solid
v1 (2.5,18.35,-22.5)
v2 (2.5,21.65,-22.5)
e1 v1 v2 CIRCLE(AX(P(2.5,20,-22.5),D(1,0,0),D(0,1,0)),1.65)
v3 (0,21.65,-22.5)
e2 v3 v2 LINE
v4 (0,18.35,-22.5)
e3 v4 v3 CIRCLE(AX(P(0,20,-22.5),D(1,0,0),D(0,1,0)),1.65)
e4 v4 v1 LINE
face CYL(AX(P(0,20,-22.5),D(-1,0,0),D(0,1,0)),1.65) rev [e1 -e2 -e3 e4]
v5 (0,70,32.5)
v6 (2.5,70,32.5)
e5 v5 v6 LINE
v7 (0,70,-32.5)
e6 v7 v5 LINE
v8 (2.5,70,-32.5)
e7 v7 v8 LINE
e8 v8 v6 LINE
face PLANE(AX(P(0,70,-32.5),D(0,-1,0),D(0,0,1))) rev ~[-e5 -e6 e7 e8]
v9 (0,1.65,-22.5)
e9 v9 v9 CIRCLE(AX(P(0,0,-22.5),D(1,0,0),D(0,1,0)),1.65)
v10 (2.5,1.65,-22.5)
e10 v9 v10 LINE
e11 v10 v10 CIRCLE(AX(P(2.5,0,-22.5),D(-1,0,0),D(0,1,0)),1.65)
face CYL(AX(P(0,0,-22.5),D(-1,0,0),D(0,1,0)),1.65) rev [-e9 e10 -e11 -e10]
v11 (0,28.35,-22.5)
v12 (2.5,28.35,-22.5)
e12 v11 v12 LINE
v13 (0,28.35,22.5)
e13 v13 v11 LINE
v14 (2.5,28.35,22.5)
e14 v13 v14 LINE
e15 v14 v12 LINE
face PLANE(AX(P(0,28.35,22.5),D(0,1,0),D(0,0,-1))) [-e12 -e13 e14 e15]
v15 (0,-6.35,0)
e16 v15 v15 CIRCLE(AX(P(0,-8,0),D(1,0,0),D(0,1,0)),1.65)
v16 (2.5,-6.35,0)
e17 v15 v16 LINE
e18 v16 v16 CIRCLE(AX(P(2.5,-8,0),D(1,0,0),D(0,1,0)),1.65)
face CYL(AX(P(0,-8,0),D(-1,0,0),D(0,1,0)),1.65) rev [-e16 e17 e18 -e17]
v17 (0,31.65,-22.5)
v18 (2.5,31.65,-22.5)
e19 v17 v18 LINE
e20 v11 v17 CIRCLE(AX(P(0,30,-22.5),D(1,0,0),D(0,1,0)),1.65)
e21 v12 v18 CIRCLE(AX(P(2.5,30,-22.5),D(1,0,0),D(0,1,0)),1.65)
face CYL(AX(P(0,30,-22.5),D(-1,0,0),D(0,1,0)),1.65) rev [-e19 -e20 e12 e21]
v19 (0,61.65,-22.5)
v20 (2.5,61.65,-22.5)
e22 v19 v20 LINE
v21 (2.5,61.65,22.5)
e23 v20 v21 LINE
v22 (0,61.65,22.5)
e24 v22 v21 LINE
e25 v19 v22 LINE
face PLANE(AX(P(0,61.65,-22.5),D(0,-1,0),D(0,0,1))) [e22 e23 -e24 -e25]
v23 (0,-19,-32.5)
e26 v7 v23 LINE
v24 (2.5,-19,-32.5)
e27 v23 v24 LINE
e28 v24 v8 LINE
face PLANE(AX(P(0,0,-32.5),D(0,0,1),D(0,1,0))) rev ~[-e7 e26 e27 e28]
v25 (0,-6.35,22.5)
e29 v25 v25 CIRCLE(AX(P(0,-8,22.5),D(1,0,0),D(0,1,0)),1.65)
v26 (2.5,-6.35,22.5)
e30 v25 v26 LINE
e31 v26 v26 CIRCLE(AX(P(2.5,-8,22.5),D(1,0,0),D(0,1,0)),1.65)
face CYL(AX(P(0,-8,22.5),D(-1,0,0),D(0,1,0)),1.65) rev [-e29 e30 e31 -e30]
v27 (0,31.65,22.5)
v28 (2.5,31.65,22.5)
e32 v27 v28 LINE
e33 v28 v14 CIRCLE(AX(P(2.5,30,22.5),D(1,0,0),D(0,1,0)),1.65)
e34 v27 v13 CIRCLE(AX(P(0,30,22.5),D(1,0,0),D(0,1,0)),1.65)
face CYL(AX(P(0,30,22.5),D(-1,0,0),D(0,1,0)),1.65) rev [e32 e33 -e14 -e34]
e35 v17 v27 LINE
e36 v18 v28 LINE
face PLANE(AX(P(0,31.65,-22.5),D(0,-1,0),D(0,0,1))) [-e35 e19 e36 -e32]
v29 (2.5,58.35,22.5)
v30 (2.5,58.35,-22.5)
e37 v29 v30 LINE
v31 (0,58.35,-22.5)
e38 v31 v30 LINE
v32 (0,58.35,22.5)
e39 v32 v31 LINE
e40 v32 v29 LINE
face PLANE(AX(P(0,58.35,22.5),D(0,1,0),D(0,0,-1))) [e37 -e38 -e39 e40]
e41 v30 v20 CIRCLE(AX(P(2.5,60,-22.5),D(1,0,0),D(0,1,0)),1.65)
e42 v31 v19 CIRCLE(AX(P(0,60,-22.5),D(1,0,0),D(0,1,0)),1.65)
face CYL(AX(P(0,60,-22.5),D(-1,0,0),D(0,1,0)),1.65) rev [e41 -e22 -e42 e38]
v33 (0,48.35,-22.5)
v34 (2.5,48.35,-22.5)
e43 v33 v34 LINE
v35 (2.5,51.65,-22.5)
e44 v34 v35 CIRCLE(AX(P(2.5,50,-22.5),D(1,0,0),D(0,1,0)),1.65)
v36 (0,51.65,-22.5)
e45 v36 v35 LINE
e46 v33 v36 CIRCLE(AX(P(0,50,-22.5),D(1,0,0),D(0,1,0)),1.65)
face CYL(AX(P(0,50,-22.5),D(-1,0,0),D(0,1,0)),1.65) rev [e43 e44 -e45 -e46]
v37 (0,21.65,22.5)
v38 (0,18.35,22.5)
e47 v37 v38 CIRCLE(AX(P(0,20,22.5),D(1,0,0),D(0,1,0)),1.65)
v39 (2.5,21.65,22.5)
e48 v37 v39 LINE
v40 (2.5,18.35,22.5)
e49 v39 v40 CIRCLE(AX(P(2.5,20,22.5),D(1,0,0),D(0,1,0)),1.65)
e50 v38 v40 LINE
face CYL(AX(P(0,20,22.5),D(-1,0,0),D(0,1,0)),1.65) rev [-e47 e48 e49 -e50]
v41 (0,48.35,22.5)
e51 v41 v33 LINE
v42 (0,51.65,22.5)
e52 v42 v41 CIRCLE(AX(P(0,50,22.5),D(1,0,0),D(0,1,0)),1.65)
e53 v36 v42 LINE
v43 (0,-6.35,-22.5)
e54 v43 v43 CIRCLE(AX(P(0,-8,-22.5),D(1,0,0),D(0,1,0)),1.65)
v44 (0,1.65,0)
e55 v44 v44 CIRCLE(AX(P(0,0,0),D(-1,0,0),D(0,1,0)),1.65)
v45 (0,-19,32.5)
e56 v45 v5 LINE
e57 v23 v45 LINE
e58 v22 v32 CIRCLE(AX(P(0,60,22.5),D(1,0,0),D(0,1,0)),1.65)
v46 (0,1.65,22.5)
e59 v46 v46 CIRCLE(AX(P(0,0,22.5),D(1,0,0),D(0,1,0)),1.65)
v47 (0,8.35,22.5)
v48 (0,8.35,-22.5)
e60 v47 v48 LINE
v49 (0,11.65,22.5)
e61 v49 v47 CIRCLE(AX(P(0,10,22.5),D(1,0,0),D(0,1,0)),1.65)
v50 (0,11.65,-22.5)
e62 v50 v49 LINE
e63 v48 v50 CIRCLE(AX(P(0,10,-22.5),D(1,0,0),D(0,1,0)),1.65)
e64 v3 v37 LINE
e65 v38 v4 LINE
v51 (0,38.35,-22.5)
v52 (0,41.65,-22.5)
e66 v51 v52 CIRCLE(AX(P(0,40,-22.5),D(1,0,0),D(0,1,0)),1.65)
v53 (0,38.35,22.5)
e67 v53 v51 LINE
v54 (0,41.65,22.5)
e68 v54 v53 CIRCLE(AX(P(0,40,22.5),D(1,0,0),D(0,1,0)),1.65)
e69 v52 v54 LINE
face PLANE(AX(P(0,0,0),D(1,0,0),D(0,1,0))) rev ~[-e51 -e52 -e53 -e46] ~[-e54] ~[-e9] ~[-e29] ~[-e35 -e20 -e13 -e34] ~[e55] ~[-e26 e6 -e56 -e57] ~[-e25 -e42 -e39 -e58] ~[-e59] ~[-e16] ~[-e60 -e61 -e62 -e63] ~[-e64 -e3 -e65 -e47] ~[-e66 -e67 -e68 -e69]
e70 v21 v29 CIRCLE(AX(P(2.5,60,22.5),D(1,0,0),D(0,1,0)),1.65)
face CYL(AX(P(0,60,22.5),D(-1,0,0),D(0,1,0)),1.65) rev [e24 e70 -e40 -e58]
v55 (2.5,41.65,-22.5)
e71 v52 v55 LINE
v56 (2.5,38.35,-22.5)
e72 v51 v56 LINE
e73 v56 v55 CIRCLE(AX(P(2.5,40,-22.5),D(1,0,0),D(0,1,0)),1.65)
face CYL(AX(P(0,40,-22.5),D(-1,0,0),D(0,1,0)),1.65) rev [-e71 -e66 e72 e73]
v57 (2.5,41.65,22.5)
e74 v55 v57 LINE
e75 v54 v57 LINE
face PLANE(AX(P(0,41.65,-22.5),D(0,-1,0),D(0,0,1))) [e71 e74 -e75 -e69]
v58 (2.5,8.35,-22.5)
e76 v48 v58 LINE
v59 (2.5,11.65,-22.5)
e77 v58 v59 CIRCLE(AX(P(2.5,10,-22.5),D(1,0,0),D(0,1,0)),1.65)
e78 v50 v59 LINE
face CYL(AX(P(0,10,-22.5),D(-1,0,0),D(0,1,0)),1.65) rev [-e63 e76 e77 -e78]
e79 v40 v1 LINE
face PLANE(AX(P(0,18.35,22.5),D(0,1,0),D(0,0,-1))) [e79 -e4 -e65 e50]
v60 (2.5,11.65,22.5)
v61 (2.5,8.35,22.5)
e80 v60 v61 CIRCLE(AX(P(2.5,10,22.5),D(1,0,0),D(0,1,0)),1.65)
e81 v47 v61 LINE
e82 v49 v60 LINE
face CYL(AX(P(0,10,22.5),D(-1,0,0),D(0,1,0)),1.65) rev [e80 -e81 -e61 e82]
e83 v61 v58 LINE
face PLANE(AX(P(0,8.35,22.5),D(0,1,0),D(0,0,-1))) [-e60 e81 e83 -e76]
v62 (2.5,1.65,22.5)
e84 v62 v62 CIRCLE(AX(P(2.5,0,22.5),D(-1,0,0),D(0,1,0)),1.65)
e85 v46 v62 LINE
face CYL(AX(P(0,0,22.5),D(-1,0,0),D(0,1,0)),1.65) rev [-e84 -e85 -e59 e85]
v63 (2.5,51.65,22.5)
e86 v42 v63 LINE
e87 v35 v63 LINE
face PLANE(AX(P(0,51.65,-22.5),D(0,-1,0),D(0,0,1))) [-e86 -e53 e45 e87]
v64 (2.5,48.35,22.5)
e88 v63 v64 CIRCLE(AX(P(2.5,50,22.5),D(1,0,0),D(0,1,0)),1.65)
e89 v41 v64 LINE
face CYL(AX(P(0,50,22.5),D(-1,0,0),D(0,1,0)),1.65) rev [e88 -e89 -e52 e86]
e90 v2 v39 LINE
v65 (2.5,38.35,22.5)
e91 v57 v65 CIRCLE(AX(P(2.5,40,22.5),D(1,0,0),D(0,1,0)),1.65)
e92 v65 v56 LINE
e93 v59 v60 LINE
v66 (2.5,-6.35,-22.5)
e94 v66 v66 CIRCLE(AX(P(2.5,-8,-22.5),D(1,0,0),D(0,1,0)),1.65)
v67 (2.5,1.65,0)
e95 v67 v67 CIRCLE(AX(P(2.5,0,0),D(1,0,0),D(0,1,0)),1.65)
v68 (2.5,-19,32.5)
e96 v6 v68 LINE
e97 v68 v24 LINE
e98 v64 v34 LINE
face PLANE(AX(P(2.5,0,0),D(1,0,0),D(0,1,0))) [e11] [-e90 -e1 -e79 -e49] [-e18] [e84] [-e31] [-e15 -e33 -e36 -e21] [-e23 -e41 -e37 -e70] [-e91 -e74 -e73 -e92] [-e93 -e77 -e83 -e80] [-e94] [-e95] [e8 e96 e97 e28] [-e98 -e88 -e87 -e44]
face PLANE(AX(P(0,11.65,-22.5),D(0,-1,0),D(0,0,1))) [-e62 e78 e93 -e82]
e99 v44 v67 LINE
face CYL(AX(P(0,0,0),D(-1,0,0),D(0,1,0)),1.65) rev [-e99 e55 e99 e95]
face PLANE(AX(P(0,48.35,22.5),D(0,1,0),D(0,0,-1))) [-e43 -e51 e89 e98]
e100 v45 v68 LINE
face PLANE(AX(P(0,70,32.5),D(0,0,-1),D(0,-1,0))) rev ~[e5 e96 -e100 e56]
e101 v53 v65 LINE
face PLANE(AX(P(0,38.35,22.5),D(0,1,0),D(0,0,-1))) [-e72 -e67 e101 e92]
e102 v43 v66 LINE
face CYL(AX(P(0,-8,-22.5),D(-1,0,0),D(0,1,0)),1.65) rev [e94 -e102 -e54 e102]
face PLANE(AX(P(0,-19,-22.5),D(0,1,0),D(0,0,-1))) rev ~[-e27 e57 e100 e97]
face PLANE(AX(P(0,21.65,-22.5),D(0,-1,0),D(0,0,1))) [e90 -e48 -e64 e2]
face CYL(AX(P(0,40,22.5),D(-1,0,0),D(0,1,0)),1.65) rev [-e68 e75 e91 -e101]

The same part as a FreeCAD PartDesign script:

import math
import FreeCAD as App
import Part
import Sketcher
from FreeCAD import Vector
Q = App.Units.Quantity

doc = App.newDocument("Part")
body = doc.addObject("PartDesign::Body", "Body")

# Sketch on YZ plane
sketch1 = body.newObject("Sketcher::SketchObject", "Sketch")
sketch1.AttachmentSupport = (doc.getObject("YZ_Plane"), [""])
sketch1.MapMode = "FlatFace"
sketch1.addGeometry(Part.LineSegment(Vector(70, 32.5, 0), Vector(-19, 32.5, 0)), False)
sketch1.addGeometry(Part.LineSegment(Vector(-19, 32.5, 0), Vector(-19, -32.5, 0)), False)
sketch1.addGeometry(Part.LineSegment(Vector(-19, -32.5, 0), Vector(70, -32.5, 0)), False)
sketch1.addGeometry(Part.LineSegment(Vector(70, -32.5, 0), Vector(70, 32.5, 0)), False)
sketch1.addGeometry(Part.Circle(Vector(0, 0, 0), Vector(0, 0, 1), 1.6), False)
sketch1.addGeometry(Part.Circle(Vector(0, 22.5, 0), Vector(0, 0, 1), 1.6), False)
sketch1.addGeometry(Part.Circle(Vector(0, -22.5, 0), Vector(0, 0, 1), 1.6), False)
sketch1.addGeometry(Part.LineSegment(Vector(11.7, 22.5, 0), Vector(11.7, -22.5, 0)), False)
sketch1.addGeometry(Part.ArcOfCircle(Part.Circle(Vector(10, -22.5, 0), Vector(0, 0, 1), 1.6), math.radians(180), math.radians(360)), False)
sketch1.addGeometry(Part.LineSegment(Vector(8.3, -22.5, 0), Vector(8.3, 22.5, 0)), False)
sketch1.addGeometry(Part.ArcOfCircle(Part.Circle(Vector(10, 22.5, 0), Vector(0, 0, 1), 1.6), math.radians(0), math.radians(180)), False)
sketch1.addGeometry(Part.LineSegment(Vector(18.4, -22.5, 0), Vector(18.4, 22.5, 0)), False)
sketch1.addGeometry(Part.ArcOfCircle(Part.Circle(Vector(20, 22.5, 0), Vector(0, 0, 1), 1.6), math.radians(0), math.radians(180)), False)
sketch1.addGeometry(Part.LineSegment(Vector(21.6, 22.5, 0), Vector(21.6, -22.5, 0)), False)
sketch1.addGeometry(Part.ArcOfCircle(Part.Circle(Vector(20, -22.5, 0), Vector(0, 0, 1), 1.6), math.radians(180), math.radians(360)), False)
sketch1.addGeometry(Part.LineSegment(Vector(28.4, -22.5, 0), Vector(28.4, 22.5, 0)), False)
sketch1.addGeometry(Part.ArcOfCircle(Part.Circle(Vector(30, 22.5, 0), Vector(0, 0, 1), 1.6), math.radians(0), math.radians(180)), False)
sketch1.addGeometry(Part.LineSegment(Vector(31.6, 22.5, 0), Vector(31.6, -22.5, 0)), False)
sketch1.addGeometry(Part.ArcOfCircle(Part.Circle(Vector(30, -22.5, 0), Vector(0, 0, 1), 1.6), math.radians(180), math.radians(360)), False)
sketch1.addGeometry(Part.LineSegment(Vector(38.4, -22.5, 0), Vector(38.4, 22.5, 0)), False)
sketch1.addGeometry(Part.ArcOfCircle(Part.Circle(Vector(40, 22.5, 0), Vector(0, 0, 1), 1.6), math.radians(0), math.radians(180)), False)
sketch1.addGeometry(Part.LineSegment(Vector(41.6, 22.5, 0), Vector(41.6, -22.5, 0)), False)
sketch1.addGeometry(Part.ArcOfCircle(Part.Circle(Vector(40, -22.5, 0), Vector(0, 0, 1), 1.6), math.radians(180), math.radians(360)), False)
sketch1.addGeometry(Part.LineSegment(Vector(48.4, -22.5, 0), Vector(48.4, 22.5, 0)), False)
sketch1.addGeometry(Part.ArcOfCircle(Part.Circle(Vector(50, 22.5, 0), Vector(0, 0, 1), 1.6), math.radians(0), math.radians(180)), False)
sketch1.addGeometry(Part.LineSegment(Vector(51.6, 22.5, 0), Vector(51.6, -22.5, 0)), False)
sketch1.addGeometry(Part.ArcOfCircle(Part.Circle(Vector(50, -22.5, 0), Vector(0, 0, 1), 1.6), math.radians(180), math.radians(360)), False)
sketch1.addGeometry(Part.LineSegment(Vector(58.4, -22.5, 0), Vector(58.4, 22.5, 0)), False)
sketch1.addGeometry(Part.ArcOfCircle(Part.Circle(Vector(60, 22.5, 0), Vector(0, 0, 1), 1.6), math.radians(0), math.radians(180)), False)
sketch1.addGeometry(Part.LineSegment(Vector(61.6, 22.5, 0), Vector(61.6, -22.5, 0)), False)
sketch1.addGeometry(Part.ArcOfCircle(Part.Circle(Vector(60, -22.5, 0), Vector(0, 0, 1), 1.6), math.radians(180), math.radians(360)), False)
sketch1.addGeometry(Part.Circle(Vector(-8, 22.5, 0), Vector(0, 0, 1), 1.6), False)
sketch1.addGeometry(Part.Circle(Vector(-8, -22.5, 0), Vector(0, 0, 1), 1.6), False)
sketch1.addGeometry(Part.Circle(Vector(-8, 0, 0), Vector(0, 0, 1), 1.6), False)
sketch1.addConstraint(Sketcher.Constraint("Coincident", 0, 2, 1, 1))
sketch1.addConstraint(Sketcher.Constraint("Coincident", 1, 2, 2, 1))
sketch1.addConstraint(Sketcher.Constraint("Coincident", 2, 2, 3, 1))
sketch1.addConstraint(Sketcher.Constraint("Coincident", 3, 2, 0, 1))
sketch1.addConstraint(Sketcher.Constraint("Tangent", 7, 2, 8, 2))
sketch1.addConstraint(Sketcher.Constraint("Tangent", 8, 1, 9, 1))
sketch1.addConstraint(Sketcher.Constraint("Tangent", 9, 2, 10, 2))
sketch1.addConstraint(Sketcher.Constraint("Tangent", 10, 1, 7, 1))
sketch1.addConstraint(Sketcher.Constraint("Tangent", 11, 2, 12, 2))
sketch1.addConstraint(Sketcher.Constraint("Tangent", 12, 1, 13, 1))
sketch1.addConstraint(Sketcher.Constraint("Tangent", 13, 2, 14, 2))
sketch1.addConstraint(Sketcher.Constraint("Tangent", 14, 1, 11, 1))
sketch1.addConstraint(Sketcher.Constraint("Tangent", 15, 2, 16, 2))
sketch1.addConstraint(Sketcher.Constraint("Tangent", 16, 1, 17, 1))
sketch1.addConstraint(Sketcher.Constraint("Tangent", 17, 2, 18, 2))
sketch1.addConstraint(Sketcher.Constraint("Tangent", 18, 1, 15, 1))
sketch1.addConstraint(Sketcher.Constraint("Tangent", 19, 2, 20, 2))
sketch1.addConstraint(Sketcher.Constraint("Tangent", 20, 1, 21, 1))
sketch1.addConstraint(Sketcher.Constraint("Tangent", 21, 2, 22, 2))
sketch1.addConstraint(Sketcher.Constraint("Tangent", 22, 1, 19, 1))
sketch1.addConstraint(Sketcher.Constraint("Tangent", 23, 2, 24, 2))
sketch1.addConstraint(Sketcher.Constraint("Tangent", 24, 1, 25, 1))
sketch1.addConstraint(Sketcher.Constraint("Tangent", 25, 2, 26, 2))
sketch1.addConstraint(Sketcher.Constraint("Tangent", 26, 1, 23, 1))
sketch1.addConstraint(Sketcher.Constraint("Tangent", 27, 2, 28, 2))
sketch1.addConstraint(Sketcher.Constraint("Tangent", 28, 1, 29, 1))
sketch1.addConstraint(Sketcher.Constraint("Tangent", 29, 2, 30, 2))
sketch1.addConstraint(Sketcher.Constraint("Tangent", 30, 1, 27, 1))
sketch1.addConstraint(Sketcher.Constraint("Horizontal", 0))
sketch1.addConstraint(Sketcher.Constraint("Vertical", 1))
sketch1.addConstraint(Sketcher.Constraint("Horizontal", 2))
sketch1.addConstraint(Sketcher.Constraint("Vertical", 3))
sketch1.addConstraint(Sketcher.Constraint("Vertical", 7))
sketch1.addConstraint(Sketcher.Constraint("Vertical", 9))
sketch1.addConstraint(Sketcher.Constraint("Vertical", 11))
sketch1.addConstraint(Sketcher.Constraint("Vertical", 13))
sketch1.addConstraint(Sketcher.Constraint("Vertical", 15))
sketch1.addConstraint(Sketcher.Constraint("Vertical", 17))
sketch1.addConstraint(Sketcher.Constraint("Vertical", 19))
sketch1.addConstraint(Sketcher.Constraint("Vertical", 21))
sketch1.addConstraint(Sketcher.Constraint("Vertical", 23))
sketch1.addConstraint(Sketcher.Constraint("Vertical", 25))
sketch1.addConstraint(Sketcher.Constraint("Vertical", 27))
sketch1.addConstraint(Sketcher.Constraint("Vertical", 29))
sketch1.addConstraint(Sketcher.Constraint("Coincident", 4, 3, -1, 1))
sketch1.addConstraint(Sketcher.Constraint("Equal", 4, 5))
sketch1.addConstraint(Sketcher.Constraint("Equal", 5, 6))
sketch1.addConstraint(Sketcher.Constraint("Equal", 6, 8))
sketch1.addConstraint(Sketcher.Constraint("Equal", 10, 12))
sketch1.addConstraint(Sketcher.Constraint("Equal", 14, 16))
sketch1.addConstraint(Sketcher.Constraint("Equal", 18, 20))
sketch1.addConstraint(Sketcher.Constraint("Equal", 22, 24))
sketch1.addConstraint(Sketcher.Constraint("Equal", 26, 28))
sketch1.addConstraint(Sketcher.Constraint("Equal", 30, 31))
sketch1.addConstraint(Sketcher.Constraint("Equal", 31, 32))
sketch1.addConstraint(Sketcher.Constraint("Equal", 32, 33))
sketch1.addConstraint(Sketcher.Constraint("Symmetric", 5, 3, 6, 3, -1, 1))
sketch1.addConstraint(Sketcher.Constraint("Symmetric", 31, 3, 32, 3, -1))
sketch1.addConstraint(Sketcher.Constraint("PointOnObject", 5, 3, -2))
sketch1.addConstraint(Sketcher.Constraint("PointOnObject", 33, 3, -1))
sketch1.addConstraint(Sketcher.Constraint("Horizontal", 6, 3, 8, 3))
sketch1.addConstraint(Sketcher.Constraint("Horizontal", 5, 3, 10, 3))
sketch1.addConstraint(Sketcher.Constraint("Horizontal", 10, 3, 12, 3))
sketch1.addConstraint(Sketcher.Constraint("Horizontal", 8, 3, 14, 3))
sketch1.addConstraint(Sketcher.Constraint("Horizontal", 12, 3, 16, 3))
sketch1.addConstraint(Sketcher.Constraint("Horizontal", 14, 3, 18, 3))
sketch1.addConstraint(Sketcher.Constraint("Horizontal", 16, 3, 20, 3))
sketch1.addConstraint(Sketcher.Constraint("Horizontal", 18, 3, 22, 3))
sketch1.addConstraint(Sketcher.Constraint("Horizontal", 20, 3, 24, 3))
sketch1.addConstraint(Sketcher.Constraint("Horizontal", 22, 3, 26, 3))
sketch1.addConstraint(Sketcher.Constraint("Horizontal", 24, 3, 28, 3))
sketch1.addConstraint(Sketcher.Constraint("Horizontal", 26, 3, 30, 3))
sketch1.addConstraint(Sketcher.Constraint("Horizontal", 28, 3, 31, 3))
sketch1.addConstraint(Sketcher.Constraint("Vertical", 32, 3, 33, 3))
sketch1.addConstraint(Sketcher.Constraint("Diameter", 4, Q("3.3 mm")))
sketch1.addConstraint(Sketcher.Constraint("DistanceX", -1, 1, 8, 3, Q("10 mm")))
sketch1.addConstraint(Sketcher.Constraint("DistanceX", -1, 1, 2, 2, Q("70 mm")))
sketch1.addConstraint(Sketcher.Constraint("DistanceX", 10, 3, 12, 3, Q("10 mm")))
sketch1.addConstraint(Sketcher.Constraint("DistanceX", 12, 3, 16, 3, Q("10 mm")))
sketch1.addConstraint(Sketcher.Constraint("DistanceX", 16, 3, 20, 3, Q("10 mm")))
sketch1.addConstraint(Sketcher.Constraint("DistanceX", 20, 3, 24, 3, Q("10 mm")))
sketch1.addConstraint(Sketcher.Constraint("DistanceX", 24, 3, 28, 3, Q("10 mm")))
sketch1.addConstraint(Sketcher.Constraint("DistanceY", 31, 3, 0, 2, Q("10 mm")))
sketch1.addConstraint(Sketcher.Constraint("DistanceY", 1, 2, 32, 3, Q("10 mm")))
sketch1.addConstraint(Sketcher.Constraint("DistanceY", -1, 1, 5, 3, Q("22.5 mm")))
sketch1.addConstraint(Sketcher.Constraint("DistanceX", 0, 2, 0, 1, Q("89 mm")))
sketch1.addConstraint(Sketcher.Constraint("DistanceX", 31, 3, -1, 1, Q("8 mm")))
pad1 = body.newObject("PartDesign::Pad", "Pad")
pad1.Profile = sketch1
pad1.Length = 2.5

doc.recompute()
